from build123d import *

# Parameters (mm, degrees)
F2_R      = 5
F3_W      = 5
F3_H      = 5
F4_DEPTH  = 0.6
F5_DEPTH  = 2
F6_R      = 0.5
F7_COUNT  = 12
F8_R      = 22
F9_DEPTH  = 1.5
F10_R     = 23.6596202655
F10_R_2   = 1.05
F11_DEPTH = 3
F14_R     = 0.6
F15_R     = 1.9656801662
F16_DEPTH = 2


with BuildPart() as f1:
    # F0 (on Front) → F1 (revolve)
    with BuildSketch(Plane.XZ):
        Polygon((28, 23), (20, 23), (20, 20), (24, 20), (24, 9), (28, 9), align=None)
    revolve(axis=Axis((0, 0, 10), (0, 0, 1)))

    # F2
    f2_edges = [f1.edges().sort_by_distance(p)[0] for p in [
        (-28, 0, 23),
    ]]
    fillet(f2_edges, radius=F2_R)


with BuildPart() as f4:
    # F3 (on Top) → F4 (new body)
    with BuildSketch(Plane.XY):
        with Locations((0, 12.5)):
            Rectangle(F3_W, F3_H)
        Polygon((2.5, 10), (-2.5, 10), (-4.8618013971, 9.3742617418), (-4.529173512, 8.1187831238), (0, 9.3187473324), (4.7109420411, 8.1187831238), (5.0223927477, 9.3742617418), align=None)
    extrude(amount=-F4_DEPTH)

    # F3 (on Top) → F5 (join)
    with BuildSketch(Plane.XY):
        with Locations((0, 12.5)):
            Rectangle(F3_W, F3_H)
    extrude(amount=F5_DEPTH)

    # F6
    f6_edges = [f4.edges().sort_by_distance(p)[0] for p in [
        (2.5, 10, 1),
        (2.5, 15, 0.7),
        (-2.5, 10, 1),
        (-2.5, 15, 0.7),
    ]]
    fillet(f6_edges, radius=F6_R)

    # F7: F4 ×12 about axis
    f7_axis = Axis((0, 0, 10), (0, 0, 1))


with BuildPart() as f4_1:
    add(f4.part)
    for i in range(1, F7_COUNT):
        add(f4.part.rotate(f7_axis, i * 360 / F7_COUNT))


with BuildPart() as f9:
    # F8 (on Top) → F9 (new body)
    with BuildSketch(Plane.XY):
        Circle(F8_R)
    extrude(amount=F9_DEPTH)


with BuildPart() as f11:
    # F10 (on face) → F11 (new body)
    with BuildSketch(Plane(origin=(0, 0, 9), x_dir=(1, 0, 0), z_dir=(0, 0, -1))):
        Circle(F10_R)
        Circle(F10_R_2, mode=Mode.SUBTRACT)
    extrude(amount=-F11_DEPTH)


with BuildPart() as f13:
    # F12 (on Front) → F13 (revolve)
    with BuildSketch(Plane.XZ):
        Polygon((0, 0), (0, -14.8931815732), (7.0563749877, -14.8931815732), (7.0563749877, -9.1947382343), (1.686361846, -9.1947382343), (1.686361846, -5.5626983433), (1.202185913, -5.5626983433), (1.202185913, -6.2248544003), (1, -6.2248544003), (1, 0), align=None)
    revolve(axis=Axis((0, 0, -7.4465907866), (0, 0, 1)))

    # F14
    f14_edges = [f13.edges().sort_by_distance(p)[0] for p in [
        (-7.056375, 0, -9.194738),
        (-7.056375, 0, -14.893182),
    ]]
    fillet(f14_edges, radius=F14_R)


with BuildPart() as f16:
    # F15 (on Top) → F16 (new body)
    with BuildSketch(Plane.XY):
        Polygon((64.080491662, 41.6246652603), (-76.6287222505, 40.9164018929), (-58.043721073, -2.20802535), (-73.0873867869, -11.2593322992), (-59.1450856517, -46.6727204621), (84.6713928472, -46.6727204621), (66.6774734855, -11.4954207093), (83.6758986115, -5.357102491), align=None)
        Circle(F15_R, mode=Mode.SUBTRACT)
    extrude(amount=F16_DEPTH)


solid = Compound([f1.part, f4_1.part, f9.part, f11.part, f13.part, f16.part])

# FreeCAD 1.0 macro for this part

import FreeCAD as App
import Part
import Sketcher

V = App.Vector
Q = App.Units.Quantity


def edges_at(feature, points):
    """Names of the edges that pass closest to the given points."""
    edges = feature.Shape.Edges
    near = lambda p: min(range(len(edges)), key=lambda i: edges[i].distToShape(Part.Vertex(*p))[0])
    return sorted({f"Edge{near(p) + 1}" for p in points})

doc = App.newDocument("Part")
body = doc.addObject("PartDesign::Body", "Body")

sketch1 = body.newObject("Sketcher::SketchObject", "Sketch")
sketch1.AttachmentSupport = (doc.getObject("XZ_Plane"), [""])
sketch1.MapMode = "FlatFace"
sketch1.addGeometry(Part.LineSegment(V(28, 23, 0), V(20, 23, 0)), False)
sketch1.addGeometry(Part.LineSegment(V(20, 23, 0), V(20, 20, 0)), False)
sketch1.addGeometry(Part.LineSegment(V(20, 20, 0), V(24, 20, 0)), False)
sketch1.addGeometry(Part.LineSegment(V(24, 20, 0), V(24, 9, 0)), False)
sketch1.addGeometry(Part.LineSegment(V(24, 9, 0), V(28, 9, 0)), False)
sketch1.addGeometry(Part.LineSegment(V(28, 9, 0), V(28, 23, 0)), False)
sketch1.addConstraint(Sketcher.Constraint("Coincident", 0, 2, 1, 1))
sketch1.addConstraint(Sketcher.Constraint("Coincident", 1, 2, 2, 1))
sketch1.addConstraint(Sketcher.Constraint("Coincident", 2, 2, 3, 1))
sketch1.addConstraint(Sketcher.Constraint("Coincident", 3, 2, 4, 1))
sketch1.addConstraint(Sketcher.Constraint("Coincident", 4, 2, 5, 1))
sketch1.addConstraint(Sketcher.Constraint("Coincident", 5, 2, 0, 1))
sketch1.addConstraint(Sketcher.Constraint("Horizontal", 0))
sketch1.addConstraint(Sketcher.Constraint("Vertical", 1))
sketch1.addConstraint(Sketcher.Constraint("Horizontal", 2))
sketch1.addConstraint(Sketcher.Constraint("Vertical", 3))
sketch1.addConstraint(Sketcher.Constraint("Horizontal", 4))
sketch1.addConstraint(Sketcher.Constraint("Vertical", 5))
sketch1.addConstraint(Sketcher.Constraint("Equal", 2, 4))
sketch1.addConstraint(Sketcher.Constraint("DistanceX", 0, 2, 0, 1, Q("8 mm")))
sketch1.addConstraint(Sketcher.Constraint("DistanceY", 1, 2, 1, 1, Q("3 mm")))
sketch1.addConstraint(Sketcher.Constraint("DistanceY", 3, 2, 3, 1, Q("11 mm")))
sketch1.addConstraint(Sketcher.Constraint("DistanceX", -1, 1, 0, 2, Q("20 mm")))
sketch1.addConstraint(Sketcher.Constraint("DistanceY", -1, 1, 0, 2, Q("23 mm")))
revolution = body.newObject("PartDesign::Revolution", "Revolution")
revolution.Profile = sketch1
revolution.ReferenceAxis = (sketch1, ["V_Axis"])
revolution.Angle = 360
doc.recompute()

fillet = body.newObject("PartDesign::Fillet", "Fillet")
fillet.Base = (revolution, edges_at(revolution, [(-28, 0, 23)]))
fillet.Radius = 5
body2 = doc.addObject("PartDesign::Body", "Body001")

sketch2 = body2.newObject("Sketcher::SketchObject", "Sketch001")
sketch2.AttachmentSupport = (doc.getObject("XY_Plane001"), [""])
sketch2.MapMode = "FlatFace"
sketch2.addGeometry(Part.LineSegment(V(-2.5, 15, 0), V(-2.5, 10, 0)), False)
sketch2.addGeometry(Part.LineSegment(V(-2.5, 10, 0), V(-4.9, 9.4, 0)), False)
sketch2.addGeometry(Part.LineSegment(V(-4.9, 9.4, 0), V(-4.5, 8.1, 0)), False)
sketch2.addGeometry(Part.LineSegment(V(-4.5, 8.1, 0), V(0, 9.3, 0)), False)
sketch2.addGeometry(Part.LineSegment(V(0, 9.3, 0), V(4.7, 8.1, 0)), False)
sketch2.addGeometry(Part.LineSegment(V(4.7, 8.1, 0), V(5, 9.4, 0)), False)
sketch2.addGeometry(Part.LineSegment(V(5, 9.4, 0), V(2.5, 10, 0)), False)
sketch2.addGeometry(Part.LineSegment(V(2.5, 10, 0), V(2.5, 15, 0)), False)
sketch2.addGeometry(Part.LineSegment(V(2.5, 15, 0), V(-2.5, 15, 0)), False)
sketch2.addConstraint(Sketcher.Constraint("Coincident", 0, 2, 1, 1))
sketch2.addConstraint(Sketcher.Constraint("Coincident", 1, 2, 2, 1))
sketch2.addConstraint(Sketcher.Constraint("Coincident", 2, 2, 3, 1))
sketch2.addConstraint(Sketcher.Constraint("Coincident", 3, 2, 4, 1))
sketch2.addConstraint(Sketcher.Constraint("Coincident", 4, 2, 5, 1))
sketch2.addConstraint(Sketcher.Constraint("Coincident", 5, 2, 6, 1))
sketch2.addConstraint(Sketcher.Constraint("Coincident", 6, 2, 7, 1))
sketch2.addConstraint(Sketcher.Constraint("Coincident", 7, 2, 8, 1))
sketch2.addConstraint(Sketcher.Constraint("Coincident", 8, 2, 0, 1))
sketch2.addConstraint(Sketcher.Constraint("Vertical", 0))
sketch2.addConstraint(Sketcher.Constraint("Vertical", 7))
sketch2.addConstraint(Sketcher.Constraint("Horizontal", 8))
sketch2.addConstraint(Sketcher.Constraint("Symmetric", 0, 2, 6, 2, -2))
sketch2.addConstraint(Sketcher.Constraint("PointOnObject", 3, 2, -2))
sketch2.addConstraint(Sketcher.Constraint("Perpendicular", 1, 2))
sketch2.addConstraint(Sketcher.Constraint("Perpendicular", 2, 3))
sketch2.addConstraint(Sketcher.Constraint("Perpendicular", 5, 6))
sketch2.addConstraint(Sketcher.Constraint("Horizontal", 2, 2, 4, 2))
sketch2.addConstraint(Sketcher.Constraint("Horizontal", 1, 2, 5, 2))
sketch2.addConstraint(Sketcher.Constraint("Equal", 8, 0))
sketch2.addConstraint(Sketcher.Constraint("DistanceX", 8, 2, 8, 1, Q("5 mm")))
sketch2.addConstraint(Sketcher.Constraint("DistanceY", -1, 1, 0, 2, Q("10 mm")))
sketch2.addConstraint(Sketcher.Constraint("DistanceX", 1, 2, -1, 1, Q("4.861801 mm")))
sketch2.addConstraint(Sketcher.Constraint("Distance", 6, Q("2.598849 mm")))
sketch2.addConstraint(Sketcher.Constraint("DistanceY", -1, 1, 1, 2, Q("9.374262 mm")))
sketch2.addConstraint(Sketcher.Constraint("DistanceY", 2, 2, 1, 2, Q("1.255479 mm")))
pad1 = body2.newObject("PartDesign::Pad", "Pad")
pad1.Profile = sketch2
pad1.Length = 0.6
pad1.Reversed = True

sketch3 = body2.newObject("Sketcher::SketchObject", "Sketch002")
sketch3.AttachmentSupport = (doc.getObject("XY_Plane001"), [""])
sketch3.MapMode = "FlatFace"
sketch3.addGeometry(Part.LineSegment(V(-2, 15, 0), V(-2, 10, 0)), False)
sketch3.addGeometry(Part.LineSegment(V(-2, 10, 0), V(2, 10, 0)), False)
sketch3.addGeometry(Part.LineSegment(V(2, 10, 0), V(2, 15, 0)), False)
sketch3.addGeometry(Part.LineSegment(V(2, 15, 0), V(-2, 15, 0)), False)
sketch3.addConstraint(Sketcher.Constraint("Coincident", 0, 2, 1, 1))
sketch3.addConstraint(Sketcher.Constraint("Coincident", 1, 2, 2, 1))
sketch3.addConstraint(Sketcher.Constraint("Coincident", 2, 2, 3, 1))
sketch3.addConstraint(Sketcher.Constraint("Coincident", 3, 2, 0, 1))
sketch3.addConstraint(Sketcher.Constraint("Vertical", 0))
sketch3.addConstraint(Sketcher.Constraint("Horizontal", 1))
sketch3.addConstraint(Sketcher.Constraint("Vertical", 2))
sketch3.addConstraint(Sketcher.Constraint("Horizontal", 3))
sketch3.addConstraint(Sketcher.Constraint("Equal", 3, 0))
sketch3.addConstraint(Sketcher.Constraint("DistanceX", 1, 1, 1, 2, Q("5 mm")))
sketch3.addConstraint(Sketcher.Constraint("DistanceY", -1, 1, 0, 2, Q("10 mm")))
sketch3.addConstraint(Sketcher.Constraint("DistanceX", 0, 2, -1, 1, Q("2.5 mm")))
pad2 = body2.newObject("PartDesign::Pad", "Pad001")
pad2.Profile = sketch3
pad2.Length = 2
doc.recompute()

fillet2 = body2.newObject("PartDesign::Fillet", "Fillet001")
fillet2.Base = (pad2, edges_at(pad2, [
    (2.5, 10, 1),
    (2.5, 15, 0.7),
    (-2.5, 10, 1),
    (-2.5, 15, 0.7),
]))
fillet2.Radius = 0.5
body3 = doc.addObject("PartDesign::Body", "Body002")
doc.recompute()

body3.BaseFeature = body2
doc.recompute()

body4 = doc.addObject("PartDesign::Body", "Body003")
body4.BaseFeature = body2
body4.Placement = App.Placement(V(0, 0, 0), App.Rotation(V(0, 0, 1), 30))
boolean = body3.newObject("PartDesign::Boolean", "Boolean")
boolean.Type = "Fuse"
boolean.addObjects([body4])
doc.recompute()

body5 = doc.addObject("PartDesign::Body", "Body004")
body5.BaseFeature = body2
body5.Placement = App.Placement(V(0, 0, 0), App.Rotation(V(0, 0, 1), 60))
boolean2 = body3.newObject("PartDesign::Boolean", "Boolean001")
boolean2.Type = "Fuse"
boolean2.addObjects([body5])
doc.recompute()

body6 = doc.addObject("PartDesign::Body", "Body005")
body6.BaseFeature = body2
body6.Placement = App.Placement(V(0, 0, 0), App.Rotation(V(0, 0, 1), 90))
boolean3 = body3.newObject("PartDesign::Boolean", "Boolean002")
boolean3.Type = "Fuse"
boolean3.addObjects([body6])
doc.recompute()

body7 = doc.addObject("PartDesign::Body", "Body006")
body7.BaseFeature = body2
body7.Placement = App.Placement(V(0, 0, 0), App.Rotation(V(0, 0, 1), 120))
boolean4 = body3.newObject("PartDesign::Boolean", "Boolean003")
boolean4.Type = "Fuse"
boolean4.addObjects([body7])
doc.recompute()

body8 = doc.addObject("PartDesign::Body", "Body007")
body8.BaseFeature = body2
body8.Placement = App.Placement(V(0, 0, 0), App.Rotation(V(0, 0, 1), 150))
boolean5 = body3.newObject("PartDesign::Boolean", "Boolean004")
boolean5.Type = "Fuse"
boolean5.addObjects([body8])
doc.recompute()

body9 = doc.addObject("PartDesign::Body", "Body008")
body9.BaseFeature = body2
body9.Placement = App.Placement(V(0, 0, 0), App.Rotation(V(0, 0, 1), 180))
boolean6 = body3.newObject("PartDesign::Boolean", "Boolean005")
boolean6.Type = "Fuse"
boolean6.addObjects([body9])
doc.recompute()

body10 = doc.addObject("PartDesign::Body", "Body009")
body10.BaseFeature = body2
body10.Placement = App.Placement(V(0, 0, 0), App.Rotation(V(0, 0, 1), 210))
boolean7 = body3.newObject("PartDesign::Boolean", "Boolean006")
boolean7.Type = "Fuse"
boolean7.addObjects([body10])
doc.recompute()

body11 = doc.addObject("PartDesign::Body", "Body010")
body11.BaseFeature = body2
body11.Placement = App.Placement(V(0, 0, 0), App.Rotation(V(0, 0, 1), 240))
boolean8 = body3.newObject("PartDesign::Boolean", "Boolean007")
boolean8.Type = "Fuse"
boolean8.addObjects([body11])
doc.recompute()

body12 = doc.addObject("PartDesign::Body", "Body011")
body12.BaseFeature = body2
body12.Placement = App.Placement(V(0, 0, 0), App.Rotation(V(0, 0, 1), 270))
boolean9 = body3.newObject("PartDesign::Boolean", "Boolean008")
boolean9.Type = "Fuse"
boolean9.addObjects([body12])
doc.recompute()

body13 = doc.addObject("PartDesign::Body", "Body012")
body13.BaseFeature = body2
body13.Placement = App.Placement(V(0, 0, 0), App.Rotation(V(0, 0, 1), 300))
boolean10 = body3.newObject("PartDesign::Boolean", "Boolean009")
boolean10.Type = "Fuse"
boolean10.addObjects([body13])
doc.recompute()

body2.Placement = App.Placement(V(0, 0, 0), App.Rotation(V(0, 0, 1), 330))
boolean11 = body3.newObject("PartDesign::Boolean", "Boolean010")
boolean11.Type = "Fuse"
boolean11.addObjects([body2])
body14 = doc.addObject("PartDesign::Body", "Body013")

sketch4 = body14.newObject("Sketcher::SketchObject", "Sketch003")
sketch4.AttachmentSupport = (doc.getObject("XY_Plane013"), [""])
sketch4.MapMode = "FlatFace"
sketch4.addGeometry(Part.Circle(V(0, 0, 0), V(0, 0, 1), 22), False)
sketch4.addConstraint(Sketcher.Constraint("Coincident", 0, 3, -1, 1))
sketch4.addConstraint(Sketcher.Constraint("Diameter", 0, Q("44 mm")))
pad3 = body14.newObject("PartDesign::Pad", "Pad002")
pad3.Profile = sketch4
pad3.Length = 1.5
body15 = doc.addObject("PartDesign::Body", "Body014")

sketch5 = body15.newObject("Sketcher::SketchObject", "Sketch004")
sketch5.AttachmentSupport = (doc.getObject("XY_Plane014"), [""])
sketch5.MapMode = "FlatFace"
sketch5.AttachmentOffset = App.Placement(V(0, 0, 9), App.Rotation())
sketch5.addGeometry(Part.Circle(V(0, 0, 0), V(0, 0, 1), 23.7), False)
sketch5.addGeometry(Part.Circle(V(0, 0, 0), V(0, 0, 1), 1.1), False)
sketch5.addConstraint(Sketcher.Constraint("Coincident", 0, 3, -1, 1))
sketch5.addConstraint(Sketcher.Constraint("Coincident", 1, 3, -1, 1))
sketch5.addConstraint(Sketcher.Constraint("Diameter", 1, Q("2.1 mm")))
sketch5.addConstraint(Sketcher.Constraint("Diameter", 0, Q("47.319241 mm")))
pad4 = body15.newObject("PartDesign::Pad", "Pad003")
pad4.Profile = sketch5
pad4.Length = 3
body16 = doc.addObject("PartDesign::Body", "Body015")

sketch6 = body16.newObject("Sketcher::SketchObject", "Sketch005")
sketch6.AttachmentSupport = (doc.getObject("XZ_Plane015"), [""])
sketch6.MapMode = "FlatFace"
sketch6.addGeometry(Part.LineSegment(V(0, 0, 0), V(0, -14.89, 0)), False)
sketch6.addGeometry(Part.LineSegment(V(0, -14.89, 0), V(7.06, -14.89, 0)), False)
sketch6.addGeometry(Part.LineSegment(V(7.06, -14.89, 0), V(7.06, -9.19, 0)), False)
sketch6.addGeometry(Part.LineSegment(V(7.06, -9.19, 0), V(1.69, -9.19, 0)), False)
sketch6.addGeometry(Part.LineSegment(V(1.69, -9.19, 0), V(1.69, -5.56, 0)), False)
sketch6.addGeometry(Part.LineSegment(V(1.69, -5.56, 0), V(1.2, -5.56, 0)), False)
sketch6.addGeometry(Part.LineSegment(V(1.2, -5.56, 0), V(1.2, -6.22, 0)), False)
sketch6.addGeometry(Part.LineSegment(V(1.2, -6.22, 0), V(1, -6.22, 0)), False)
sketch6.addGeometry(Part.LineSegment(V(1, -6.22, 0), V(1, 0, 0)), False)
sketch6.addGeometry(Part.LineSegment(V(1, 0, 0), V(0, 0, 0)), False)
sketch6.addConstraint(Sketcher.Constraint("Coincident", 0, 2, 1, 1))
sketch6.addConstraint(Sketcher.Constraint("Coincident", 1, 2, 2, 1))
sketch6.addConstraint(Sketcher.Constraint("Coincident", 2, 2, 3, 1))
sketch6.addConstraint(Sketcher.Constraint("Coincident", 3, 2, 4, 1))
sketch6.addConstraint(Sketcher.Constraint("Coincident", 4, 2, 5, 1))
sketch6.addConstraint(Sketcher.Constraint("Coincident", 5, 2, 6, 1))
sketch6.addConstraint(Sketcher.Constraint("Coincident", 6, 2, 7, 1))
sketch6.addConstraint(Sketcher.Constraint("Coincident", 7, 2, 8, 1))
sketch6.addConstraint(Sketcher.Constraint("Coincident", 8, 2, 9, 1))
sketch6.addConstraint(Sketcher.Constraint("Coincident", 9, 2, 0, 1))
sketch6.addConstraint(Sketcher.Constraint("Vertical", 0))
sketch6.addConstraint(Sketcher.Constraint("Horizontal", 1))
sketch6.addConstraint(Sketcher.Constraint("Vertical", 2))
sketch6.addConstraint(Sketcher.Constraint("Horizontal", 3))
sketch6.addConstraint(Sketcher.Constraint("Vertical", 4))
sketch6.addConstraint(Sketcher.Constraint("Horizontal", 5))
sketch6.addConstraint(Sketcher.Constraint("Vertical", 6))
sketch6.addConstraint(Sketcher.Constraint("Horizontal", 7))
sketch6.addConstraint(Sketcher.Constraint("Vertical", 8))
sketch6.addConstraint(Sketcher.Constraint("Horizontal", 9))
sketch6.addConstraint(Sketcher.Constraint("Coincident", 9, 2, -1, 1))
sketch6.addConstraint(Sketcher.Constraint("DistanceX", 9, 2, 9, 1, Q("1 mm")))
sketch6.addConstraint(Sketcher.Constraint("DistanceY", 0, 2, 0, 1, Q("14.893182 mm")))
sketch6.addConstraint(Sketcher.Constraint("DistanceY", 4, 1, 4, 2, Q("3.63204 mm")))
sketch6.addConstraint(Sketcher.Constraint("DistanceY", 4, 2, -1, 1, Q("5.562698 mm")))
sketch6.addConstraint(Sketcher.Constraint("DistanceX", 1, 1, 1, 2, Q("7.056375 mm")))
sketch6.addConstraint(Sketcher.Constraint("DistanceX", 3, 2, 3, 1, Q("5.370013 mm")))
sketch6.addConstraint(Sketcher.Constraint("DistanceX", 5, 2, 5, 1, Q("0.484176 mm")))
sketch6.addConstraint(Sketcher.Constraint("DistanceY", 6, 2, 6, 1, Q("0.662156 mm")))
revolution2 = body16.newObject("PartDesign::Revolution", "Revolution001")
revolution2.Profile = sketch6
revolution2.ReferenceAxis = (sketch6, ["V_Axis"])
revolution2.Angle = 360
doc.recompute()

fillet3 = body16.newObject("PartDesign::Fillet", "Fillet002")
fillet3.Base = (revolution2, edges_at(revolution2, [(-7.056, 0, -9.195), (-7.056, 0, -14.893)]))
fillet3.Radius = 0.6
body17 = doc.addObject("PartDesign::Body", "Body016")

sketch7 = body17.newObject("Sketcher::SketchObject", "Sketch006")
sketch7.AttachmentSupport = (doc.getObject("XY_Plane016"), [""])
sketch7.MapMode = "FlatFace"
sketch7.addGeometry(Part.LineSegment(V(64.1, 41.6, 0), V(-76.6, 40.9, 0)), False)
sketch7.addGeometry(Part.LineSegment(V(-76.6, 40.9, 0), V(-58, -2.2, 0)), False)
sketch7.addGeometry(Part.LineSegment(V(-58, -2.2, 0), V(-73.1, -11.3, 0)), False)
sketch7.addGeometry(Part.LineSegment(V(-73.1, -11.3, 0), V(-59.1, -46.7, 0)), False)
sketch7.addGeometry(Part.LineSegment(V(-59.1, -46.7, 0), V(84.7, -46.7, 0)), False)
sketch7.addGeometry(Part.LineSegment(V(84.7, -46.7, 0), V(66.7, -11.5, 0)), False)
sketch7.addGeometry(Part.LineSegment(V(66.7, -11.5, 0), V(83.7, -5.4, 0)), False)
sketch7.addGeometry(Part.LineSegment(V(83.7, -5.4, 0), V(64.1, 41.6, 0)), False)
sketch7.addGeometry(Part.Circle(V(0, 0, 0), V(0, 0, 1), 2), False)
sketch7.addConstraint(Sketcher.Constraint("Coincident", 0, 2, 1, 1))
sketch7.addConstraint(Sketcher.Constraint("Coincident", 1, 2, 2, 1))
sketch7.addConstraint(Sketcher.Constraint("Coincident", 2, 2, 3, 1))
sketch7.addConstraint(Sketcher.Constraint("Coincident", 3, 2, 4, 1))
sketch7.addConstraint(Sketcher.Constraint("Coincident", 4, 2, 5, 1))
sketch7.addConstraint(Sketcher.Constraint("Coincident", 5, 2, 6, 1))
sketch7.addConstraint(Sketcher.Constraint("Coincident", 6, 2, 7, 1))
sketch7.addConstraint(Sketcher.Constraint("Coincident", 7, 2, 0, 1))
sketch7.addConstraint(Sketcher.Constraint("Horizontal", 4))
sketch7.addConstraint(Sketcher.Constraint("Coincident", 8, 3, -1, 1))
sketch7.addConstraint(Sketcher.Constraint("Diameter", 8, Q("3.93136 mm")))
sketch7.addConstraint(Sketcher.Constraint("DistanceX", 0, 2, 1, 2, Q("18.585001 mm")))
sketch7.addConstraint(Sketcher.Constraint("DistanceX", 4, 1, 4, 2, Q("143.816478 mm")))
sketch7.addConstraint(Sketcher.Constraint("DistanceY", -1, 1, 0, 2, Q("40.916402 mm")))
sketch7.addConstraint(Sketcher.Constraint("DistanceX", -1, 1, 6, 2, Q("83.675899 mm")))
sketch7.addConstraint(Sketcher.Constraint("DistanceX", 2, 2, 3, 2, Q("13.942301 mm")))
sketch7.addConstraint(Sketcher.Constraint("DistanceY", 4, 2, 5, 2, Q("35.1773 mm")))
sketch7.addConstraint(Sketcher.Constraint("DistanceX", 7, 2, 4, 2, Q("20.590901 mm")))
sketch7.addConstraint(Sketcher.Constraint("Distance", 1, Q("46.958689 mm")))
sketch7.addConstraint(Sketcher.Constraint("Distance", 2, Q("17.556709 mm")))
sketch7.addConstraint(Sketcher.Constraint("Distance", 3, Q("38.05911 mm")))
sketch7.addConstraint(Sketcher.Constraint("Distance", 5, Q("39.512322 mm")))
sketch7.addConstraint(Sketcher.Constraint("Distance", 6, Q("18.072781 mm")))
sketch7.addConstraint(Sketcher.Constraint("DistanceX", 1, 2, -1, 1, Q("58.043721 mm")))
sketch7.addConstraint(Sketcher.Constraint("DistanceY", 3, 2, -1, 1, Q("46.67272 mm")))
sketch7.addConstraint(Sketcher.Constraint("DistanceY", 1, 2, 7, 2, Q("43.832691 mm")))
pad5 = body17.newObject("PartDesign::Pad", "Pad004")
pad5.Profile = sketch7
pad5.Length = 2

doc.recompute()
